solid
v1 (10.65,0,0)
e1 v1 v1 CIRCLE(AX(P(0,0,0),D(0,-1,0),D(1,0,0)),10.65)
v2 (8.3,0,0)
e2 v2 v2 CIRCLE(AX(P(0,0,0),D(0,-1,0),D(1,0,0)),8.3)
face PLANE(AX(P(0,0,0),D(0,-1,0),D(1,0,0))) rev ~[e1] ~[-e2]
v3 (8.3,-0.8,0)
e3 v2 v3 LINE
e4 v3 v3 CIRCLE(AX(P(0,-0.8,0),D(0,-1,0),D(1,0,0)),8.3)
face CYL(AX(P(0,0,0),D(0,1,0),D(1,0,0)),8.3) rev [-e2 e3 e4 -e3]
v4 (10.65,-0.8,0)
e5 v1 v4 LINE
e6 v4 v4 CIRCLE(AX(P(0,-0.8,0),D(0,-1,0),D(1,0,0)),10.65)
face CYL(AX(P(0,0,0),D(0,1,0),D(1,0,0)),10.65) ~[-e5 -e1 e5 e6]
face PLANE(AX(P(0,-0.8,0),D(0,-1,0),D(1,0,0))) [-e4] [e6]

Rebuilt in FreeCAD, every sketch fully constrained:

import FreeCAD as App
import Part
import Sketcher

V = App.Vector

doc = App.newDocument("Part")
body = doc.addObject("PartDesign::Body", "Body")

sketch1 = body.newObject("Sketcher::SketchObject", "Sketch")
sketch1.AttachmentSupport = (doc.getObject("XZ_Plane"), [""])
sketch1.MapMode = "FlatFace"
sketch1.addGeometry([
    Part.Circle(V(0, 0, 0), V(0, 0, 1), 10.65),
    Part.Circle(V(0, 0, 0), V(0, 0, 1), 8.3),
], False)
sketch1.addConstraint([
    Sketcher.Constraint("Coincident", 0, 3, -1, 1),
    Sketcher.Constraint("Coincident", 1, 3, -1, 1),
    Sketcher.Constraint("Diameter", 0, 21.3),
    Sketcher.Constraint("Diameter", 1, 16.6),
])
pad1 = body.newObject("PartDesign::Pad", "Pad")
pad1.Profile = sketch1
pad1.Length = 0.8

doc.recompute()
